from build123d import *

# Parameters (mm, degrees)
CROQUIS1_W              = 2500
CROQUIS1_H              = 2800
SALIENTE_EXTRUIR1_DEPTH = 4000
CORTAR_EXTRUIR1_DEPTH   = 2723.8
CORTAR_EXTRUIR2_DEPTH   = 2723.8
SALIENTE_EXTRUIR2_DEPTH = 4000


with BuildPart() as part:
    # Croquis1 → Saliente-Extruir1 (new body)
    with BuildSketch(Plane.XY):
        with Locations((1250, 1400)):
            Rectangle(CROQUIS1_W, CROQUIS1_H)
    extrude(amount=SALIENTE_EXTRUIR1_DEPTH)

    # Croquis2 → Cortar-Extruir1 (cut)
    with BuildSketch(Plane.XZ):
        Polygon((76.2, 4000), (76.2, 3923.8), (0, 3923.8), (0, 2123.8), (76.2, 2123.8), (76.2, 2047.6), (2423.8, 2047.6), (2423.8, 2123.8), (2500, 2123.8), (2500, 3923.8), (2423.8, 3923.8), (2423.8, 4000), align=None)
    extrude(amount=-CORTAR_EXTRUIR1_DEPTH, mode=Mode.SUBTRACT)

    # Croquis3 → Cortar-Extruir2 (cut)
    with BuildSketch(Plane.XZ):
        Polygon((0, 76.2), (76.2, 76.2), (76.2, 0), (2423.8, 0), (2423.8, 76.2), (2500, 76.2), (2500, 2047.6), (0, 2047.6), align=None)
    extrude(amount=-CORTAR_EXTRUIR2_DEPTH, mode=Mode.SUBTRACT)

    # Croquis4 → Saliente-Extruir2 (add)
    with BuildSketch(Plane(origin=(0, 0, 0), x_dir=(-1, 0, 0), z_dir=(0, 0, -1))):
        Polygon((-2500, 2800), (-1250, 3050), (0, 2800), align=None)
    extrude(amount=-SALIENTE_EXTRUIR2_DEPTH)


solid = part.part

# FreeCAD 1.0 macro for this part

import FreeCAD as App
import Part
import Sketcher
from FreeCAD import Vector
Q = App.Units.Quantity

doc = App.newDocument("Part")
body = doc.addObject("PartDesign::Body", "Body")

# Sketch on XY plane
sketch1 = body.newObject("Sketcher::SketchObject", "Sketch")
sketch1.AttachmentSupport = (doc.getObject("XY_Plane"), [""])
sketch1.MapMode = "FlatFace"
sketch1.addGeometry([
    Part.LineSegment(Vector(0, 2800, 0), Vector(0, 0, 0)),
    Part.LineSegment(Vector(0, 0, 0), Vector(2500, 0, 0)),
    Part.LineSegment(Vector(2500, 0, 0), Vector(2500, 2800, 0)),
    Part.LineSegment(Vector(2500, 2800, 0), Vector(0, 2800, 0)),
], False)
sketch1.addConstraint([
    Sketcher.Constraint("Coincident", 0, 2, 1, 1),
    Sketcher.Constraint("Coincident", 1, 2, 2, 1),
    Sketcher.Constraint("Coincident", 2, 2, 3, 1),
    Sketcher.Constraint("Coincident", 3, 2, 0, 1),
    Sketcher.Constraint("Vertical", 0),
    Sketcher.Constraint("Horizontal", 1),
    Sketcher.Constraint("Vertical", 2),
    Sketcher.Constraint("Horizontal", 3),
    Sketcher.Constraint("Coincident", 0, 2, -1, 1),
    Sketcher.Constraint("DistanceX", 1, 1, 1, 2, Q("2500 mm")),
    Sketcher.Constraint("DistanceY", 0, 2, 0, 1, Q("2800 mm")),
])
pad1 = body.newObject("PartDesign::Pad", "Pad")
pad1.Profile = sketch1
pad1.Length = 4000

# Sketch on XZ plane
sketch2 = body.newObject("Sketcher::SketchObject", "Sketch001")
sketch2.AttachmentSupport = (doc.getObject("XZ_Plane"), [""])
sketch2.MapMode = "FlatFace"
sketch2.addGeometry([
    Part.LineSegment(Vector(76.2, 4000, 0), Vector(76.2, 3923.8, 0)),  # 0
    Part.LineSegment(Vector(76.2, 3923.8, 0), Vector(0, 3923.8, 0)),  # 1
    Part.LineSegment(Vector(0, 3923.8, 0), Vector(0, 2123.8, 0)),  # 2
    Part.LineSegment(Vector(0, 2123.8, 0), Vector(76.2, 2123.8, 0)),  # 3
    Part.LineSegment(Vector(76.2, 2123.8, 0), Vector(76.2, 2047.6, 0)),  # 4
    Part.LineSegment(Vector(76.2, 2047.6, 0), Vector(2423.8, 2047.6, 0)),  # 5
    Part.LineSegment(Vector(2423.8, 2047.6, 0), Vector(2423.8, 2123.8, 0)),  # 6
    Part.LineSegment(Vector(2423.8, 2123.8, 0), Vector(2500, 2123.8, 0)),  # 7
    Part.LineSegment(Vector(2500, 2123.8, 0), Vector(2500, 3923.8, 0)),  # 8
    Part.LineSegment(Vector(2500, 3923.8, 0), Vector(2423.8, 3923.8, 0)),  # 9
    Part.LineSegment(Vector(2423.8, 3923.8, 0), Vector(2423.8, 4000, 0)),  # 10
    Part.LineSegment(Vector(2423.8, 4000, 0), Vector(76.2, 4000, 0)),  # 11
], False)
sketch2.addConstraint([
    Sketcher.Constraint("Coincident", 0, 2, 1, 1),
    Sketcher.Constraint("Coincident", 1, 2, 2, 1),
    Sketcher.Constraint("Coincident", 2, 2, 3, 1),
    Sketcher.Constraint("Coincident", 3, 2, 4, 1),
    Sketcher.Constraint("Coincident", 4, 2, 5, 1),
    Sketcher.Constraint("Coincident", 5, 2, 6, 1),
    Sketcher.Constraint("Coincident", 6, 2, 7, 1),
    Sketcher.Constraint("Coincident", 7, 2, 8, 1),
    Sketcher.Constraint("Coincident", 8, 2, 9, 1),
    Sketcher.Constraint("Coincident", 9, 2, 10, 1),
    Sketcher.Constraint("Coincident", 10, 2, 11, 1),
    Sketcher.Constraint("Coincident", 11, 2, 0, 1),
    Sketcher.Constraint("Vertical", 0),
    Sketcher.Constraint("Horizontal", 1),
    Sketcher.Constraint("Vertical", 2),
    Sketcher.Constraint("Horizontal", 3),
    Sketcher.Constraint("Vertical", 4),
    Sketcher.Constraint("Horizontal", 5),
    Sketcher.Constraint("Vertical", 6),
    Sketcher.Constraint("Horizontal", 7),
    Sketcher.Constraint("Vertical", 8),
    Sketcher.Constraint("Horizontal", 9),
    Sketcher.Constraint("Vertical", 10),
    Sketcher.Constraint("Horizontal", 11),
    Sketcher.Constraint("PointOnObject", 1, 2, -2),
    Sketcher.Constraint("Horizontal", 3, 2, 6, 2),
    Sketcher.Constraint("Horizontal", 1, 2, 8, 2),
    Sketcher.Constraint("Vertical", 0, 2, 3, 2),
    Sketcher.Constraint("Vertical", 6, 2, 9, 2),
    Sketcher.Constraint("Equal", 3, 7),
    Sketcher.Constraint("Equal", 9, 0),
    Sketcher.Constraint("Equal", 0, 4),
    Sketcher.Constraint("DistanceY", 2, 2, 2, 1, Q("1800 mm")),
    Sketcher.Constraint("DistanceX", 1, 2, 1, 1, Q("76.2 mm")),
    Sketcher.Constraint("DistanceX", 5, 1, 5, 2, Q("2347.6 mm")),
    Sketcher.Constraint("DistanceY", -1, 1, 10, 2, Q("4000 mm")),
])
pocket1 = body.newObject("PartDesign::Pocket", "Pocket")
pocket1.Profile = sketch2
pocket1.Length = 2723.8

# Sketch on XZ plane
sketch3 = body.newObject("Sketcher::SketchObject", "Sketch002")
sketch3.AttachmentSupport = (doc.getObject("XZ_Plane"), [""])
sketch3.MapMode = "FlatFace"
sketch3.addGeometry([
    Part.LineSegment(Vector(0, 76.2, 0), Vector(76.2, 76.2, 0)),  # 0
    Part.LineSegment(Vector(76.2, 76.2, 0), Vector(76.2, 0, 0)),  # 1
    Part.LineSegment(Vector(76.2, 0, 0), Vector(2423.8, 0, 0)),  # 2
    Part.LineSegment(Vector(2423.8, 0, 0), Vector(2423.8, 76.2, 0)),  # 3
    Part.LineSegment(Vector(2423.8, 76.2, 0), Vector(2500, 76.2, 0)),  # 4
    Part.LineSegment(Vector(2500, 76.2, 0), Vector(2500, 2047.6, 0)),  # 5
    Part.LineSegment(Vector(2500, 2047.6, 0), Vector(0, 2047.6, 0)),  # 6
    Part.LineSegment(Vector(0, 2047.6, 0), Vector(0, 76.2, 0)),  # 7
], False)
sketch3.addConstraint([
    Sketcher.Constraint("Coincident", 0, 2, 1, 1),
    Sketcher.Constraint("Coincident", 1, 2, 2, 1),
    Sketcher.Constraint("Coincident", 2, 2, 3, 1),
    Sketcher.Constraint("Coincident", 3, 2, 4, 1),
    Sketcher.Constraint("Coincident", 4, 2, 5, 1),
    Sketcher.Constraint("Coincident", 5, 2, 6, 1),
    Sketcher.Constraint("Coincident", 6, 2, 7, 1),
    Sketcher.Constraint("Coincident", 7, 2, 0, 1),
    Sketcher.Constraint("Horizontal", 0),
    Sketcher.Constraint("Vertical", 1),
    Sketcher.Constraint("Horizontal", 2),
    Sketcher.Constraint("Vertical", 3),
    Sketcher.Constraint("Horizontal", 4),
    Sketcher.Constraint("Vertical", 5),
    Sketcher.Constraint("Horizontal", 6),
    Sketcher.Constraint("Vertical", 7),
    Sketcher.Constraint("PointOnObject", 1, 2, -1),
    Sketcher.Constraint("PointOnObject", 6, 2, -2),
    Sketcher.Constraint("Horizontal", 0, 2, 3, 2),
    Sketcher.Constraint("Equal", 0, 4),
    Sketcher.Constraint("Equal", 4, 1),
    Sketcher.Constraint("DistanceX", 6, 2, 6, 1, Q("2500 mm")),
    Sketcher.Constraint("DistanceX", 0, 1, 0, 2, Q("76.2 mm")),
    Sketcher.Constraint("DistanceY", 5, 1, 5, 2, Q("1971.4 mm")),
])
pocket2 = body.newObject("PartDesign::Pocket", "Pocket001")
pocket2.Profile = sketch3
pocket2.Length = 2723.8

# Sketch on XY plane
sketch4 = body.newObject("Sketcher::SketchObject", "Sketch003")
sketch4.AttachmentSupport = (doc.getObject("XY_Plane"), [""])
sketch4.MapMode = "FlatFace"
sketch4.addGeometry([
    Part.LineSegment(Vector(1250, 3050, 0), Vector(2500, 2800, 0)),
    Part.LineSegment(Vector(2500, 2800, 0), Vector(0, 2800, 0)),
    Part.LineSegment(Vector(0, 2800, 0), Vector(1250, 3050, 0)),
], False)
sketch4.addConstraint([
    Sketcher.Constraint("Coincident", 0, 2, 1, 1),
    Sketcher.Constraint("Coincident", 1, 2, 2, 1),
    Sketcher.Constraint("Coincident", 2, 2, 0, 1),
    Sketcher.Constraint("Horizontal", 1),
    Sketcher.Constraint("PointOnObject", 1, 2, -2),
    Sketcher.Constraint("Equal", 0, 2),
    Sketcher.Constraint("DistanceX", 1, 2, 1, 1, Q("2500 mm")),
    Sketcher.Constraint("DistanceY", -1, 1, 0, 2, Q("2800 mm")),
    Sketcher.Constraint("DistanceY", -1, 1, 2, 2, Q("3050 mm")),
])
pad2 = body.newObject("PartDesign::Pad", "Pad001")
pad2.Profile = sketch4
pad2.Length = 4000

doc.recompute()
